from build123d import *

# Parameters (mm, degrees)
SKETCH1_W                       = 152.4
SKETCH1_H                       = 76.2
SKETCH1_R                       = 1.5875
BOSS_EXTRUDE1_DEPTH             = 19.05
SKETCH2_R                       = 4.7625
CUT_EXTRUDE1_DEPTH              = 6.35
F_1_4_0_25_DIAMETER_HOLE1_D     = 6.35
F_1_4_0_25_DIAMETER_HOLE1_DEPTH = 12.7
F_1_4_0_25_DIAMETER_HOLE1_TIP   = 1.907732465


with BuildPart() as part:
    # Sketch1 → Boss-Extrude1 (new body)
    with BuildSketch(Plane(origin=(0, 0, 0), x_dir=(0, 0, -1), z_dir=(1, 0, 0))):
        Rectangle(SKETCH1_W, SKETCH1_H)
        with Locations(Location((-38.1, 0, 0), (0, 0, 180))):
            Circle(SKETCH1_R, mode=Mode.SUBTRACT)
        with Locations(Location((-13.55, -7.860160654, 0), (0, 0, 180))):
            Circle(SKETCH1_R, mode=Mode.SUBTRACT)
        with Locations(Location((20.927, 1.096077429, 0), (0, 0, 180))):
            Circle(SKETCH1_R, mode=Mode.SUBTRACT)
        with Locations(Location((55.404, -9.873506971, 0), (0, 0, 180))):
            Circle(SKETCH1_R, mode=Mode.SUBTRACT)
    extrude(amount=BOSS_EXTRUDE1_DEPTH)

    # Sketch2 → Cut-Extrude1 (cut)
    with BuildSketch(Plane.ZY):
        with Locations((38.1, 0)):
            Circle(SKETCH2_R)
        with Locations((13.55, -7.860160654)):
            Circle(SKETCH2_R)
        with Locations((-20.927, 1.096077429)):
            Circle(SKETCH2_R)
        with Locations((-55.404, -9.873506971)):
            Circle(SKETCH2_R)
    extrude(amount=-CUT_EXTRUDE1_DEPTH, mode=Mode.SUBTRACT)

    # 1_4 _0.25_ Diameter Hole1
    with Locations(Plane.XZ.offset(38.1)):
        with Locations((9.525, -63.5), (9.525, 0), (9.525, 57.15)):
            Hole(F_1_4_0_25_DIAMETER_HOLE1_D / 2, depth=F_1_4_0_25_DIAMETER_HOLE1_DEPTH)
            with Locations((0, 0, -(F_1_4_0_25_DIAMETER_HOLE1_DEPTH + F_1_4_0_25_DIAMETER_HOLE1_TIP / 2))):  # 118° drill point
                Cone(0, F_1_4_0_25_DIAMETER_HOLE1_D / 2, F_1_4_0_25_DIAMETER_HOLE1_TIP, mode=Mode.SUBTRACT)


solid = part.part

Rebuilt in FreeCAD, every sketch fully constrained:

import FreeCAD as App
import Part
import Sketcher

V = App.Vector
Q = App.Units.Quantity


def add_polygon(sketch, points):
    """Adds a closed chain of lines whose ends are joined by coincident constraints."""
    first, n = sketch.GeometryCount, len(points)
    for a, b in zip(points, points[1:] + points[:1]):
        sketch.addGeometry(Part.LineSegment(App.Vector(*a, 0), App.Vector(*b, 0)), False)
    for i in range(n):
        sketch.addConstraint(Sketcher.Constraint("Coincident", first + i, 2, first + (i + 1) % n, 1))

doc = App.newDocument("Part")
params = doc.addObject("Spreadsheet::Sheet", "Params")
for row, (alias, value) in enumerate([
    ("sketch1_width", "3 in"),
    ("sketch1_height", "6 in"),
    ("sketch1_diameter", "0.125 in"),
    ("pad1_length", "0.75 in"),
    ("sketch2_diameter", "0.375 in"),
    ("pocket1_length", "0.25 in"),
    ("sketch3_diameter", "0.25 in"),
    ("hole_diameter", "0.25 in"),
    ("hole_depth", "0.5 in"),
], start=1):
    params.set(f"A{row}", alias)
    params.set(f"B{row}", "=" + value)
    params.setAlias(f"B{row}", alias)

body = doc.addObject("PartDesign::Body", "Body")

sketch1 = body.newObject("Sketcher::SketchObject", "Sketch")
sketch1.AttachmentSupport = (doc.getObject("YZ_Plane"), [""])
sketch1.MapMode = "FlatFace"
add_polygon(sketch1, [(38.1, 76.2), (-38.1, 76.2), (-38.1, -76.2), (38.1, -76.2)])
sketch1.addGeometry(Part.Circle(V(-7.9, 13.6, 0), V(0, 0, 1), 1.6), False)
sketch1.addGeometry(Part.Circle(V(-9.9, -55.4, 0), V(0, 0, 1), 1.6), False)
sketch1.addGeometry(Part.Circle(V(0, 38.1, 0), V(0, 0, 1), 1.6), False)
sketch1.addGeometry(Part.Circle(V(1.1, -20.9, 0), V(0, 0, 1), 1.6), False)
sketch1.addConstraint([
    Sketcher.Constraint("Horizontal", 0),
    Sketcher.Constraint("Vertical", 1),
    Sketcher.Constraint("Horizontal", 2),
    Sketcher.Constraint("Vertical", 3),
    Sketcher.Constraint("Equal", 4, 5),
    Sketcher.Constraint("Equal", 5, 6),
    Sketcher.Constraint("Equal", 6, 7),
    Sketcher.Constraint("Symmetric", 0, 2, 2, 2, -1, 1),
    Sketcher.Constraint("PointOnObject", 6, 3, -2),
    Sketcher.Constraint("DistanceX", 0, 2, 0, 1, Q("3 in")),
    Sketcher.Constraint("DistanceY", 1, 2, 1, 1, Q("6 in")),
    Sketcher.Constraint("Diameter", 4, Q("0.125 in")),
    Sketcher.Constraint("DistanceY", -1, 1, 6, 3, Q("1.5 in")),
    Sketcher.Constraint("DistanceY", -1, 1, 4, 3, Q("13.55 mm")),
    Sketcher.Constraint("DistanceY", 5, 3, -1, 1, Q("55.404 mm")),
    Sketcher.Constraint("DistanceY", 7, 3, -1, 1, Q("20.927 mm")),
    Sketcher.Constraint("DistanceX", 4, 3, -1, 1, Q("7.860161 mm")),
    Sketcher.Constraint("DistanceX", 4, 3, 7, 3, Q("8.956238 mm")),
    Sketcher.Constraint("DistanceX", 5, 3, -1, 1, Q("9.873507 mm")),
])
sketch1.setExpression("Constraints[13]", "Params.sketch1_width")
sketch1.setExpression("Constraints[14]", "Params.sketch1_height")
sketch1.setExpression("Constraints[15]", "Params.sketch1_diameter")
pad1 = body.newObject("PartDesign::Pad", "Pad")
pad1.Profile = sketch1
pad1.setExpression("Length", "Params.pad1_length")

sketch2 = body.newObject("Sketcher::SketchObject", "Sketch001")
sketch2.AttachmentSupport = (doc.getObject("YZ_Plane"), [""])
sketch2.MapMode = "FlatFace"
sketch2.addGeometry([
    Part.Circle(V(0, 38.1, 0), V(0, 0, 1), 4.8),
    Part.Circle(V(-7.9, 13.6, 0), V(0, 0, 1), 4.8),
    Part.Circle(V(1.1, -20.9, 0), V(0, 0, 1), 4.8),
    Part.Circle(V(-9.9, -55.4, 0), V(0, 0, 1), 4.8),
], False)
sketch2.addConstraint([
    Sketcher.Constraint("Equal", 0, 1),
    Sketcher.Constraint("Equal", 1, 2),
    Sketcher.Constraint("Equal", 2, 3),
    Sketcher.Constraint("PointOnObject", 0, 3, -2),
    Sketcher.Constraint("Diameter", 0, Q("0.375 in")),
    Sketcher.Constraint("DistanceY", -1, 1, 0, 3, Q("1.5 in")),
    Sketcher.Constraint("DistanceY", -1, 1, 1, 3, Q("13.55 mm")),
    Sketcher.Constraint("DistanceY", 2, 3, -1, 1, Q("20.927 mm")),
    Sketcher.Constraint("DistanceY", 3, 3, -1, 1, Q("55.404 mm")),
    Sketcher.Constraint("DistanceX", 1, 3, -1, 1, Q("7.860161 mm")),
    Sketcher.Constraint("DistanceX", 1, 3, 2, 3, Q("8.956238 mm")),
    Sketcher.Constraint("DistanceX", 3, 3, -1, 1, Q("9.873507 mm")),
])
sketch2.setExpression("Constraints[4]", "Params.sketch2_diameter")
pocket1 = body.newObject("PartDesign::Pocket", "Pocket")
pocket1.Profile = sketch2
pocket1.setExpression("Length", "Params.pocket1_length")
pocket1.Reversed = True

sketch3 = body.newObject("Sketcher::SketchObject", "Sketch002")
sketch3.AttachmentSupport = (doc.getObject("XZ_Plane"), [""])
sketch3.MapMode = "FlatFace"
sketch3.AttachmentOffset = App.Placement(V(0, 0, 1.5 * 25.4), App.Rotation())
sketch3.addGeometry([
    Part.Circle(V(9.5, -63.5, 0), V(0, 0, 1), 3.2),
    Part.Circle(V(9.5, 0, 0), V(0, 0, 1), 3.2),
    Part.Circle(V(9.5, 57.1, 0), V(0, 0, 1), 3.2),
], False)
sketch3.addConstraint([
    Sketcher.Constraint("Equal", 0, 1),
    Sketcher.Constraint("Equal", 1, 2),
    Sketcher.Constraint("PointOnObject", 1, 3, -1),
    Sketcher.Constraint("Vertical", 0, 3, 1, 3),
    Sketcher.Constraint("Vertical", 1, 3, 2, 3),
    Sketcher.Constraint("Diameter", 0, Q("0.25 in")),
    Sketcher.Constraint("DistanceY", 0, 3, -1, 1, Q("2.5 in")),
    Sketcher.Constraint("DistanceY", -1, 1, 2, 3, Q("2.25 in")),
    Sketcher.Constraint("DistanceX", -1, 1, 0, 3, Q("0.375 in")),
])
sketch3.setExpression("Constraints[5]", "Params.sketch3_diameter")
doc.recompute()
hole = body.newObject("PartDesign::Hole", "Hole")
hole.Profile = sketch3
hole.ThreadType = "None"
hole.setExpression("Diameter", "Params.hole_diameter")
hole.DepthType = "Dimension"
hole.setExpression("Depth", "Params.hole_depth")
hole.DrillPoint = "Angled"
hole.DrillPointAngle = 118

doc.recompute()
